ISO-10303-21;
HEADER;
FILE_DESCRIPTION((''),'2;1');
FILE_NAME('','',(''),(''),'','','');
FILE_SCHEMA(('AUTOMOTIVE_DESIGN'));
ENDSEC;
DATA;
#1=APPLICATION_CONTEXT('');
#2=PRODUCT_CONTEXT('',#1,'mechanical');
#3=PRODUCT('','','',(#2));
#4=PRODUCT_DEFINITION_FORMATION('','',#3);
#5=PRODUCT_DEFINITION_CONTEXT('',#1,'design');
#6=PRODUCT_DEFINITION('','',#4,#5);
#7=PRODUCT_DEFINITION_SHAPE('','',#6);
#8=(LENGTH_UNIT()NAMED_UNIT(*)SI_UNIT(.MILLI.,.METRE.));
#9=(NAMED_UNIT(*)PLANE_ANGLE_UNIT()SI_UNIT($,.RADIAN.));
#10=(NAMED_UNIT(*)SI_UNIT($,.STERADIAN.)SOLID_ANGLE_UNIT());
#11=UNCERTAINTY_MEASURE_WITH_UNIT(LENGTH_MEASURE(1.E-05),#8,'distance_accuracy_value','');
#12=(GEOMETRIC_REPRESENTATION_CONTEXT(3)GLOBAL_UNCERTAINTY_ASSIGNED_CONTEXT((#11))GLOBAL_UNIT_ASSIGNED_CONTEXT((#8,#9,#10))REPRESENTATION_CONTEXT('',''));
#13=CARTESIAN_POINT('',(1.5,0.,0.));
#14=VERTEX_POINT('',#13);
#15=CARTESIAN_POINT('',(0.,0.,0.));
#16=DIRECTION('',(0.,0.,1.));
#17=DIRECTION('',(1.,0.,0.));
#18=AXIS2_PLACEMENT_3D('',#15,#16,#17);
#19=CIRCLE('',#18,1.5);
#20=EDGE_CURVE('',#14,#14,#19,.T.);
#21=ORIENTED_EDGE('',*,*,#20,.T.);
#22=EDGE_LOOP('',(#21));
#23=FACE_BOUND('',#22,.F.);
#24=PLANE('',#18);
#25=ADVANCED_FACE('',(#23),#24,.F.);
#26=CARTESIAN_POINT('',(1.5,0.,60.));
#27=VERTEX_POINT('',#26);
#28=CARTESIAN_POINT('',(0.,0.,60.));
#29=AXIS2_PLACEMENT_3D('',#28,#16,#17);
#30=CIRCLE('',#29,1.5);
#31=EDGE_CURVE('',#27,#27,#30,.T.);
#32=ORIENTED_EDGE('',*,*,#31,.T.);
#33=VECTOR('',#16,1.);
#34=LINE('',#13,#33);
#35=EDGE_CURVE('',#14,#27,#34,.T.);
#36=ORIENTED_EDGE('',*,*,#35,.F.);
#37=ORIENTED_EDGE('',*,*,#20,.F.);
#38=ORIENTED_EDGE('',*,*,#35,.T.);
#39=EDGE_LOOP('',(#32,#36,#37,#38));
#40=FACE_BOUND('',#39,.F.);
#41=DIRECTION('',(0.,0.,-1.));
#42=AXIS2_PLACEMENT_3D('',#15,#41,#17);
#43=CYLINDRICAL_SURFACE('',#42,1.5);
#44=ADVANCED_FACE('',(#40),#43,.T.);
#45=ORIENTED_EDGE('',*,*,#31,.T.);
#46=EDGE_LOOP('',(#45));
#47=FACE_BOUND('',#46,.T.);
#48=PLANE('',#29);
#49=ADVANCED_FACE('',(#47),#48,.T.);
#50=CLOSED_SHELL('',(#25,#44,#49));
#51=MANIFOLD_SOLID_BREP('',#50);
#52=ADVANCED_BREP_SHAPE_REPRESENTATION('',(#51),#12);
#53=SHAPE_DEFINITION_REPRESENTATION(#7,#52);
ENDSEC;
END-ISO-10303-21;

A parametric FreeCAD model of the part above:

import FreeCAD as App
import Part
import Sketcher
from FreeCAD import Vector
Q = App.Units.Quantity

doc = App.newDocument("Part")
body = doc.addObject("PartDesign::Body", "Body")

# Sketch on XY plane
sketch1 = doc.addObject("Sketcher::SketchObject", "Sketch")
body.addObject(sketch1)
sketch1.AttachmentSupport = (doc.XY_Plane, [""])
sketch1.MapMode = "FlatFace"
sketch1.addGeometry(Part.Circle(Vector(0, 0, 0), Vector(0, 0, 1), 1.5), False)
sketch1.addConstraint(Sketcher.Constraint("Coincident", 0, 3, -1, 1))
sketch1.addConstraint(Sketcher.Constraint("Diameter", 0, Q("3 mm")))
pad1 = doc.addObject("PartDesign::Pad", "Pad")
body.addObject(pad1)
pad1.Profile = sketch1
pad1.Length = 60

doc.recompute()
